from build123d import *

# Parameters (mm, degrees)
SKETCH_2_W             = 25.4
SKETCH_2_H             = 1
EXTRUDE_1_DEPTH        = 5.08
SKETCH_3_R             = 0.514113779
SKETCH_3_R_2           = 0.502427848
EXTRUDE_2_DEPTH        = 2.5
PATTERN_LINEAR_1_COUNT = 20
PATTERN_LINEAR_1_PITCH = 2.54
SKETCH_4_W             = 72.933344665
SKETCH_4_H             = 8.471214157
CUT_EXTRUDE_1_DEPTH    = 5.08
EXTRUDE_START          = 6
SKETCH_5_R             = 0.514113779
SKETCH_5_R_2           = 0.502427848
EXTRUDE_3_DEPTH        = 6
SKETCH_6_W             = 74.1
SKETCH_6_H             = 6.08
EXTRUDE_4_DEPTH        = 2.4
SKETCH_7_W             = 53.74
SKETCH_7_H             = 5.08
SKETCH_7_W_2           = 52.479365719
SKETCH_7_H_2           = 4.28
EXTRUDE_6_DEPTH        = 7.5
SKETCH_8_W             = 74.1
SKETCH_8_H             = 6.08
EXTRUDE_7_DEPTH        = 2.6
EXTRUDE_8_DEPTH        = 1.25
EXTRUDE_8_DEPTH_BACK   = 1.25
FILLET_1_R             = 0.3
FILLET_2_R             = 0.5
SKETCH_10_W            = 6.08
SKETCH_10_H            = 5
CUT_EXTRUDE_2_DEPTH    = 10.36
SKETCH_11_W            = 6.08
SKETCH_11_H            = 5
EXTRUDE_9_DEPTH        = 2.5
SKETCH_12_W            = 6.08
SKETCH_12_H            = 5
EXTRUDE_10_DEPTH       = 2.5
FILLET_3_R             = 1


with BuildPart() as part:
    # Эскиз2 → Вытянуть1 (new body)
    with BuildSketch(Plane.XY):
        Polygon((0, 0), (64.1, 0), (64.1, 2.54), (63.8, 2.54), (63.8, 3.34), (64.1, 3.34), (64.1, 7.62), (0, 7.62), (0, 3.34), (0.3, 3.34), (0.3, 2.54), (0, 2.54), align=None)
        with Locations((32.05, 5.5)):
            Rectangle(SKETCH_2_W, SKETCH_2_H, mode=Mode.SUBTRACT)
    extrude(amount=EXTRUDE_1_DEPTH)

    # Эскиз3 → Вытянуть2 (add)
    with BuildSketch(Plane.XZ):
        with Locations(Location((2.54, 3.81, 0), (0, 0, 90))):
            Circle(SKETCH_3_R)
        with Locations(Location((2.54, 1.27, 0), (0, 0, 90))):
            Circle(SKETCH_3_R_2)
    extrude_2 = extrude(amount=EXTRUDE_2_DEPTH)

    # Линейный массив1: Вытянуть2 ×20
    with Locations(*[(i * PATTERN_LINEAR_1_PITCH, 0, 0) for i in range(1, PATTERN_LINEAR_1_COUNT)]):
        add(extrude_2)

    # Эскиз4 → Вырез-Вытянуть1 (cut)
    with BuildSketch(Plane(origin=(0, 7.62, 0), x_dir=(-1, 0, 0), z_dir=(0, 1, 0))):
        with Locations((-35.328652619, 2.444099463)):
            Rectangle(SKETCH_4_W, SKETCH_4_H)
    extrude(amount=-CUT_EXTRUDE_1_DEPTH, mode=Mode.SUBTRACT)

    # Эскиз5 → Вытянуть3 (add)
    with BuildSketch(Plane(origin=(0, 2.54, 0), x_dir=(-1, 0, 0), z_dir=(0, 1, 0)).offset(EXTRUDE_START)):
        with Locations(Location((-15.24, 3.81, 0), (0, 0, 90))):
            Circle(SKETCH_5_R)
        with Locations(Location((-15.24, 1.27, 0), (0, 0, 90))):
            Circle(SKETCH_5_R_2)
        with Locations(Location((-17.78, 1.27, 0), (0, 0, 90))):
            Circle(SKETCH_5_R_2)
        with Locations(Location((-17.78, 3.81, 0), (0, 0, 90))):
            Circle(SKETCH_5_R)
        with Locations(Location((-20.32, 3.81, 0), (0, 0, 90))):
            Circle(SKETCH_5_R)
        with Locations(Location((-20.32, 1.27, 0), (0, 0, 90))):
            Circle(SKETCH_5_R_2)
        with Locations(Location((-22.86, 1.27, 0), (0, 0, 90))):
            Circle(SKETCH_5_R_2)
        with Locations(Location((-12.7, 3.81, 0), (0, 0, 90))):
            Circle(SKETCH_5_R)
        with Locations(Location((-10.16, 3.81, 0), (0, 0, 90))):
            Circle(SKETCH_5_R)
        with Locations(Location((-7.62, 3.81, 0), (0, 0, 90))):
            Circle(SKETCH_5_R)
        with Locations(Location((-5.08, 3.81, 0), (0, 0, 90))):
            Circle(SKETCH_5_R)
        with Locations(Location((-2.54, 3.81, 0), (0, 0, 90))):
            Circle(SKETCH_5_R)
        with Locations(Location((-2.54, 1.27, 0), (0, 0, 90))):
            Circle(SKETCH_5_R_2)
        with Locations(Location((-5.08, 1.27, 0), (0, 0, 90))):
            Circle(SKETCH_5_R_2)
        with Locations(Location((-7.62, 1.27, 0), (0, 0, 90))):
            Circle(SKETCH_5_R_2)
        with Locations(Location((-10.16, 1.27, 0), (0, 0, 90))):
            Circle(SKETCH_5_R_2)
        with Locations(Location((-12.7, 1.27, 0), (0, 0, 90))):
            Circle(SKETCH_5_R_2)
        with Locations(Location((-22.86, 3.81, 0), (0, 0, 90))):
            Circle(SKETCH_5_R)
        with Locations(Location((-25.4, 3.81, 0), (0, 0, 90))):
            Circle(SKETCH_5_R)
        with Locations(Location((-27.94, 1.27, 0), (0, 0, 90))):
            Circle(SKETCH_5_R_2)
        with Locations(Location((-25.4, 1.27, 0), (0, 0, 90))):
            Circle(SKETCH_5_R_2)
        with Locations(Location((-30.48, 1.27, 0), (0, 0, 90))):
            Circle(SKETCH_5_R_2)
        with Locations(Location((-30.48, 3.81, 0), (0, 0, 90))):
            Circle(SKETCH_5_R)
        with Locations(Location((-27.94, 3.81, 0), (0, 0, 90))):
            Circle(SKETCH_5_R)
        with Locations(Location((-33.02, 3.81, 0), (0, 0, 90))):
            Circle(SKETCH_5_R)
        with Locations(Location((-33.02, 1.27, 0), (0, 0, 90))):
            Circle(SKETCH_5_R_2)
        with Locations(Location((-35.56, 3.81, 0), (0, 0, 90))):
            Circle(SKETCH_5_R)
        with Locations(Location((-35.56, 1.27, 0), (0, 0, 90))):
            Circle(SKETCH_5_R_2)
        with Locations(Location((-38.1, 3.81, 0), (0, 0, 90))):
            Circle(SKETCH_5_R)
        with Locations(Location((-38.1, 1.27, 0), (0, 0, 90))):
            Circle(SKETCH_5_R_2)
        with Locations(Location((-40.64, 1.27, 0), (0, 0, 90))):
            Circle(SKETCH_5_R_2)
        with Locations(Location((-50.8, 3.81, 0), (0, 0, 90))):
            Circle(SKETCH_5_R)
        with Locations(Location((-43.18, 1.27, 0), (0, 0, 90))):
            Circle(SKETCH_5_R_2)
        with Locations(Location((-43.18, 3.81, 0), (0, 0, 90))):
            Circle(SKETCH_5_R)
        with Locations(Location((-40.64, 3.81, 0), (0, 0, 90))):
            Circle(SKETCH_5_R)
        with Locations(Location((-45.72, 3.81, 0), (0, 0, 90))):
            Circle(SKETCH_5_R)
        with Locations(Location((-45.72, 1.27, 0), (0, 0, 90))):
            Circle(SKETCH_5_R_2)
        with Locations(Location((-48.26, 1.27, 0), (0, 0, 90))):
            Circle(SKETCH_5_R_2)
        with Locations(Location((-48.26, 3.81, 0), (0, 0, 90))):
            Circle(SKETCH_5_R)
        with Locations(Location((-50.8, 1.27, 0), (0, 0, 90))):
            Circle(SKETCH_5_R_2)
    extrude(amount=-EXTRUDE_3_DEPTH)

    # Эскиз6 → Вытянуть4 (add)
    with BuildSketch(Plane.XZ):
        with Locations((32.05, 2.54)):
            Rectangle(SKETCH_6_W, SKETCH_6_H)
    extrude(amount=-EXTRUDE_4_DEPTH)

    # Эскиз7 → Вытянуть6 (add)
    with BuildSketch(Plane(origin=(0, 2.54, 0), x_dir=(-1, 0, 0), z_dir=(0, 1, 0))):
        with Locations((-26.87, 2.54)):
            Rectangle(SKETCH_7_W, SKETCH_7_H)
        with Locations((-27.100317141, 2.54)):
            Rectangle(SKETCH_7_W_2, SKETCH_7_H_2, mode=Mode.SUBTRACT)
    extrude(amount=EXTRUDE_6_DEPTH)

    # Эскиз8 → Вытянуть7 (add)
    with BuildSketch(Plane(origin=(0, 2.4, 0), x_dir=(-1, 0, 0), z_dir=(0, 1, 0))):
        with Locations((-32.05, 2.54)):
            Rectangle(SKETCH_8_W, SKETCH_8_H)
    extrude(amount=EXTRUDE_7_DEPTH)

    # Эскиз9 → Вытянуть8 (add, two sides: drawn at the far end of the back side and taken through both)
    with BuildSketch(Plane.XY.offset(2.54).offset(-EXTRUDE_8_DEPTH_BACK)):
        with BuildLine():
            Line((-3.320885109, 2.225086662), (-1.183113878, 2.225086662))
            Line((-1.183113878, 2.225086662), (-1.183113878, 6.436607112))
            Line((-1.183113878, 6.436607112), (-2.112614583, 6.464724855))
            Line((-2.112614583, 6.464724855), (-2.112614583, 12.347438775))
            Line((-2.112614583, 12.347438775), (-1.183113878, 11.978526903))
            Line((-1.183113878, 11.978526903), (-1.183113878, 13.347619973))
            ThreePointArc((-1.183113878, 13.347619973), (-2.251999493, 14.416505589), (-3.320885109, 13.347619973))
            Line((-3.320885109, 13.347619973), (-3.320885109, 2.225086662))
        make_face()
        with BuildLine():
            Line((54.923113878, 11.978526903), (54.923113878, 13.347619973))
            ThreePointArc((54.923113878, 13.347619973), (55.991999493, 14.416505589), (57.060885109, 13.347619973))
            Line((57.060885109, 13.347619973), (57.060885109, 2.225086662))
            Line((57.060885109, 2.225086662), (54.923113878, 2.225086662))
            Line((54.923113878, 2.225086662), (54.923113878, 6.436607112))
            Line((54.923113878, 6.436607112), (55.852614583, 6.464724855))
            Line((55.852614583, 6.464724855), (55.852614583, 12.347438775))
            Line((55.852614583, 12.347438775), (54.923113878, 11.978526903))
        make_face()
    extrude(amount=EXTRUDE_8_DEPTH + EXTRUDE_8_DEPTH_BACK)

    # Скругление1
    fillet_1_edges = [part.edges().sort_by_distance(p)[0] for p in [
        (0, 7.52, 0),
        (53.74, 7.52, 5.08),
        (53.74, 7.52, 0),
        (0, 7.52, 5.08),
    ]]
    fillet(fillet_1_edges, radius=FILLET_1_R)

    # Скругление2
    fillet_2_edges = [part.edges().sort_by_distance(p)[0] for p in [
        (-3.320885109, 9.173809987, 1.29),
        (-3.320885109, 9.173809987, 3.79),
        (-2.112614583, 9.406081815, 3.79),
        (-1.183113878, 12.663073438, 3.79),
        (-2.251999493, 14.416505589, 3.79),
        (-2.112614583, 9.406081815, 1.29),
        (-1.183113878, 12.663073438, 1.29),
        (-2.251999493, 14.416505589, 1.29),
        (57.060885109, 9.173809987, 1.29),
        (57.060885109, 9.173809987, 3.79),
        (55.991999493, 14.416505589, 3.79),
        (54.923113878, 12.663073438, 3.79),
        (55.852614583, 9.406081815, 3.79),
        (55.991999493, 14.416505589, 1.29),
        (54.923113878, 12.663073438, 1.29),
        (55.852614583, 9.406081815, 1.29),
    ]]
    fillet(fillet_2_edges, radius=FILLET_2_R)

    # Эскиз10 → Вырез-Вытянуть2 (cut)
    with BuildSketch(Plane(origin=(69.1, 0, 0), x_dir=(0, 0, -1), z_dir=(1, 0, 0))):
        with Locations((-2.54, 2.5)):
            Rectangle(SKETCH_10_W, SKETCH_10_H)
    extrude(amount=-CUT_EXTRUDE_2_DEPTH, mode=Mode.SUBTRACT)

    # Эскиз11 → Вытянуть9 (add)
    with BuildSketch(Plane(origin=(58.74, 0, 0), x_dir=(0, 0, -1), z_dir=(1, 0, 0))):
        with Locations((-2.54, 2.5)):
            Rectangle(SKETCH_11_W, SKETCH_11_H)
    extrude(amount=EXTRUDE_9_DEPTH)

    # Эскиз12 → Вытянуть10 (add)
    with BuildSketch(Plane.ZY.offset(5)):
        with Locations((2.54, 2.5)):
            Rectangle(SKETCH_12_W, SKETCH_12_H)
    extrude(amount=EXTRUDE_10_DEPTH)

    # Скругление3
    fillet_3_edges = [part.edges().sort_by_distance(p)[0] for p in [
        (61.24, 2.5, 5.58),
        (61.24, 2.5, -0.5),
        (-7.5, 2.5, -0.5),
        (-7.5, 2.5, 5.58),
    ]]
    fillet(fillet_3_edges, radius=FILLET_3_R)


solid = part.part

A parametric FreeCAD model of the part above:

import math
import FreeCAD as App
import Part
import Sketcher

V = App.Vector


def edges_at(feature, points):
    """Names of the edges that pass closest to the given points."""
    edges = feature.Shape.Edges
    near = lambda p: min(range(len(edges)), key=lambda i: edges[i].distToShape(Part.Vertex(*p))[0])
    return sorted({f"Edge{near(p) + 1}" for p in points})


def add_polygon(sketch, points):
    """Adds a closed chain of lines whose ends are joined by coincident constraints."""
    first, n = sketch.GeometryCount, len(points)
    for a, b in zip(points, points[1:] + points[:1]):
        sketch.addGeometry(Part.LineSegment(App.Vector(*a, 0), App.Vector(*b, 0)), False)
    for i in range(n):
        sketch.addConstraint(Sketcher.Constraint("Coincident", first + i, 2, first + (i + 1) % n, 1))

doc = App.newDocument("Part")
body = doc.addObject("PartDesign::Body", "Body")

# Sketch on XY plane
sketch1 = body.newObject("Sketcher::SketchObject", "Sketch")
sketch1.AttachmentSupport = (doc.getObject("XY_Plane"), [""])
sketch1.MapMode = "FlatFace"
add_polygon(sketch1, [(0, 0), (64.1, 0), (64.1, 2.54), (63.8, 2.54), (63.8, 3.34), (64.1, 3.34), (64.1, 7.62), (0, 7.62), (0, 3.34), (0.3, 3.34), (0.3, 2.54), (0, 2.54)])  # lines 0-11
add_polygon(sketch1, [(44.75, 5), (19.35, 5), (19.35, 6), (44.75, 6)])  # lines 12-15
sketch1.addConstraint([
    Sketcher.Constraint("Horizontal", 0),
    Sketcher.Constraint("Vertical", 1),
    Sketcher.Constraint("Horizontal", 2),
    Sketcher.Constraint("Vertical", 3),
    Sketcher.Constraint("Horizontal", 4),
    Sketcher.Constraint("Vertical", 5),
    Sketcher.Constraint("Horizontal", 6),
    Sketcher.Constraint("Vertical", 7),
    Sketcher.Constraint("Horizontal", 8),
    Sketcher.Constraint("Vertical", 9),
    Sketcher.Constraint("Horizontal", 10),
    Sketcher.Constraint("Vertical", 11),
    Sketcher.Constraint("Horizontal", 12),
    Sketcher.Constraint("Vertical", 13),
    Sketcher.Constraint("Horizontal", 14),
    Sketcher.Constraint("Vertical", 15),
    Sketcher.Constraint("Coincident", 11, 2, -1, 1),
    Sketcher.Constraint("PointOnObject", 6, 2, -2),
    Sketcher.Constraint("Horizontal", 4, 2, 7, 2),
    Sketcher.Constraint("Horizontal", 2, 2, 9, 2),
    Sketcher.Constraint("Vertical", 1, 2, 4, 2),
    Sketcher.Constraint("Equal", 4, 8),
    Sketcher.Constraint("DistanceY", 13, 1, 13, 2, 1.0),
    Sketcher.Constraint("DistanceX", 0, 1, 0, 2, 64.1),
    Sketcher.Constraint("DistanceX", 2, 2, 2, 1, 0.3),
    Sketcher.Constraint("DistanceX", 12, 2, 12, 1, 25.4),
    Sketcher.Constraint("DistanceY", 3, 1, 3, 2, 0.8),
    Sketcher.Constraint("DistanceY", -1, 1, 12, 2, 5.0),
    Sketcher.Constraint("DistanceY", 1, 1, 1, 2, 2.54),
    Sketcher.Constraint("DistanceY", 5, 1, 5, 2, 4.28),
    Sketcher.Constraint("DistanceX", -1, 1, 12, 2, 19.35),
])
pad1 = body.newObject("PartDesign::Pad", "Pad")
pad1.Profile = sketch1
pad1.Length = 5.08

# Sketch on XZ plane
sketch2 = body.newObject("Sketcher::SketchObject", "Sketch001")
sketch2.AttachmentSupport = (doc.getObject("XZ_Plane"), [""])
sketch2.MapMode = "FlatFace"
sketch2.addGeometry([
    Part.Circle(V(2.5, 3.8, 0), V(0, 0, 1), 0.5),
    Part.Circle(V(2.5, 1.3, 0), V(0, 0, 1), 0.5),
], False)
sketch2.addConstraint([
    Sketcher.Constraint("Vertical", 0, 3, 1, 3),
    Sketcher.Constraint("DistanceX", -1, 1, 0, 3, 2.54),
    Sketcher.Constraint("DistanceY", -1, 1, 0, 3, 3.81),
    Sketcher.Constraint("DistanceY", -1, 1, 1, 3, 1.27),
    Sketcher.Constraint("Diameter", 0, 1.028228),
    Sketcher.Constraint("Diameter", 1, 1.004856),
])
pad2 = body.newObject("PartDesign::Pad", "Pad001")
pad2.Profile = sketch2
pad2.Length = 2.5
doc.recompute()

linearpattern = body.newObject("PartDesign::LinearPattern", "LinearPattern")
linearpattern.Originals = [pad2]
linearpattern.Direction = (doc.getObject("X_Axis"), [""])
linearpattern.Mode = "offset"
linearpattern.Offset = 2.54
linearpattern.Occurrences = 20
body.Tip = linearpattern

# Sketch on XZ plane
sketch3 = body.newObject("Sketcher::SketchObject", "Sketch002")
sketch3.AttachmentSupport = (doc.getObject("XZ_Plane"), [""])
sketch3.MapMode = "FlatFace"
sketch3.AttachmentOffset = App.Placement(V(0, 0, -7.62), App.Rotation())
add_polygon(sketch3, [(72, 7), (72, -2), (-1, -2), (-1, 7)])  # lines 0-3
sketch3.addConstraint([
    Sketcher.Constraint("Vertical", 0),
    Sketcher.Constraint("Horizontal", 1),
    Sketcher.Constraint("Vertical", 2),
    Sketcher.Constraint("Horizontal", 3),
    Sketcher.Constraint("DistanceX", 1, 2, 1, 1, 72.933345),
    Sketcher.Constraint("DistanceY", 0, 2, 0, 1, 8.471214),
    Sketcher.Constraint("DistanceX", 1, 2, -1, 1, 1.13802),
    Sketcher.Constraint("DistanceY", 0, 2, -1, 1, 1.791508),
])
pocket1 = body.newObject("PartDesign::Pocket", "Pocket")
pocket1.Profile = sketch3
pocket1.Length = 5.08
pocket1.Reversed = True

# Sketch on XZ plane
sketch4 = body.newObject("Sketcher::SketchObject", "Sketch003")
sketch4.AttachmentSupport = (doc.getObject("XZ_Plane"), [""])
sketch4.MapMode = "FlatFace"
sketch4.AttachmentOffset = App.Placement(V(0, 0, -8.54), App.Rotation())
sketch4.addGeometry([
    Part.Circle(V(15.2, 3.8, 0), V(0, 0, 1), 0.5),  # 0
    Part.Circle(V(15.2, 1.3, 0), V(0, 0, 1), 0.5),  # 1
    Part.Circle(V(17.8, 1.3, 0), V(0, 0, 1), 0.5),  # 2
    Part.Circle(V(17.8, 3.8, 0), V(0, 0, 1), 0.5),  # 3
    Part.Circle(V(20.3, 3.8, 0), V(0, 0, 1), 0.5),  # 4
    Part.Circle(V(20.3, 1.3, 0), V(0, 0, 1), 0.5),  # 5
    Part.Circle(V(22.9, 1.3, 0), V(0, 0, 1), 0.5),  # 6
    Part.Circle(V(12.7, 3.8, 0), V(0, 0, 1), 0.5),  # 7
    Part.Circle(V(10.2, 3.8, 0), V(0, 0, 1), 0.5),  # 8
    Part.Circle(V(7.6, 3.8, 0), V(0, 0, 1), 0.5),  # 9
    Part.Circle(V(5.1, 3.8, 0), V(0, 0, 1), 0.5),  # 10
    Part.Circle(V(2.5, 3.8, 0), V(0, 0, 1), 0.5),  # 11
    Part.Circle(V(2.5, 1.3, 0), V(0, 0, 1), 0.5),  # 12
    Part.Circle(V(5.1, 1.3, 0), V(0, 0, 1), 0.5),  # 13
    Part.Circle(V(7.6, 1.3, 0), V(0, 0, 1), 0.5),  # 14
    Part.Circle(V(10.2, 1.3, 0), V(0, 0, 1), 0.5),  # 15
    Part.Circle(V(12.7, 1.3, 0), V(0, 0, 1), 0.5),  # 16
    Part.Circle(V(22.9, 3.8, 0), V(0, 0, 1), 0.5),  # 17
    Part.Circle(V(25.4, 3.8, 0), V(0, 0, 1), 0.5),  # 18
    Part.Circle(V(27.9, 1.3, 0), V(0, 0, 1), 0.5),  # 19
    Part.Circle(V(25.4, 1.3, 0), V(0, 0, 1), 0.5),  # 20
    Part.Circle(V(30.5, 1.3, 0), V(0, 0, 1), 0.5),  # 21
    Part.Circle(V(30.5, 3.8, 0), V(0, 0, 1), 0.5),  # 22
    Part.Circle(V(27.9, 3.8, 0), V(0, 0, 1), 0.5),  # 23
    Part.Circle(V(33, 3.8, 0), V(0, 0, 1), 0.5),  # 24
    Part.Circle(V(33, 1.3, 0), V(0, 0, 1), 0.5),  # 25
    Part.Circle(V(35.6, 3.8, 0), V(0, 0, 1), 0.5),  # 26
    Part.Circle(V(35.6, 1.3, 0), V(0, 0, 1), 0.5),  # 27
    Part.Circle(V(38.1, 3.8, 0), V(0, 0, 1), 0.5),  # 28
    Part.Circle(V(38.1, 1.3, 0), V(0, 0, 1), 0.5),  # 29
    Part.Circle(V(40.6, 1.3, 0), V(0, 0, 1), 0.5),  # 30
    Part.Circle(V(50.8, 3.8, 0), V(0, 0, 1), 0.5),  # 31
    Part.Circle(V(43.2, 1.3, 0), V(0, 0, 1), 0.5),  # 32
    Part.Circle(V(43.2, 3.8, 0), V(0, 0, 1), 0.5),  # 33
    Part.Circle(V(40.6, 3.8, 0), V(0, 0, 1), 0.5),  # 34
    Part.Circle(V(45.7, 3.8, 0), V(0, 0, 1), 0.5),  # 35
    Part.Circle(V(45.7, 1.3, 0), V(0, 0, 1), 0.5),  # 36
    Part.Circle(V(48.3, 1.3, 0), V(0, 0, 1), 0.5),  # 37
    Part.Circle(V(48.3, 3.8, 0), V(0, 0, 1), 0.5),  # 38
    Part.Circle(V(50.8, 1.3, 0), V(0, 0, 1), 0.5),  # 39
], False)
sketch4.addConstraint([
    Sketcher.Constraint("Equal", 1, 2),
    Sketcher.Constraint("Equal", 0, 3),
    Sketcher.Constraint("Equal", 3, 4),
    Sketcher.Constraint("Equal", 2, 5),
    Sketcher.Constraint("Equal", 5, 6),
    Sketcher.Constraint("Equal", 4, 7),
    Sketcher.Constraint("Equal", 7, 8),
    Sketcher.Constraint("Equal", 8, 9),
    Sketcher.Constraint("Equal", 9, 10),
    Sketcher.Constraint("Equal", 10, 11),
    Sketcher.Constraint("Equal", 6, 12),
    Sketcher.Constraint("Equal", 12, 13),
    Sketcher.Constraint("Equal", 13, 14),
    Sketcher.Constraint("Equal", 14, 15),
    Sketcher.Constraint("Equal", 15, 16),
    Sketcher.Constraint("Equal", 11, 17),
    Sketcher.Constraint("Equal", 17, 18),
    Sketcher.Constraint("Equal", 16, 19),
    Sketcher.Constraint("Equal", 19, 20),
    Sketcher.Constraint("Equal", 20, 21),
    Sketcher.Constraint("Equal", 18, 22),
    Sketcher.Constraint("Equal", 22, 23),
    Sketcher.Constraint("Equal", 23, 24),
    Sketcher.Constraint("Equal", 21, 25),
    Sketcher.Constraint("Equal", 24, 26),
    Sketcher.Constraint("Equal", 25, 27),
    Sketcher.Constraint("Equal", 26, 28),
    Sketcher.Constraint("Equal", 27, 29),
    Sketcher.Constraint("Equal", 29, 30),
    Sketcher.Constraint("Equal", 28, 31),
    Sketcher.Constraint("Equal", 30, 32),
    Sketcher.Constraint("Equal", 31, 33),
    Sketcher.Constraint("Equal", 33, 34),
    Sketcher.Constraint("Equal", 34, 35),
    Sketcher.Constraint("Equal", 32, 36),
    Sketcher.Constraint("Equal", 36, 37),
    Sketcher.Constraint("Equal", 35, 38),
    Sketcher.Constraint("Equal", 37, 39),
    Sketcher.Constraint("Horizontal", 1, 3, 2, 3),
    Sketcher.Constraint("Horizontal", 0, 3, 3, 3),
    Sketcher.Constraint("Horizontal", 3, 3, 4, 3),
    Sketcher.Constraint("Horizontal", 2, 3, 5, 3),
    Sketcher.Constraint("Horizontal", 5, 3, 6, 3),
    Sketcher.Constraint("Horizontal", 4, 3, 7, 3),
    Sketcher.Constraint("Horizontal", 7, 3, 8, 3),
    Sketcher.Constraint("Horizontal", 8, 3, 9, 3),
    Sketcher.Constraint("Horizontal", 9, 3, 10, 3),
    Sketcher.Constraint("Horizontal", 10, 3, 11, 3),
    Sketcher.Constraint("Horizontal", 6, 3, 12, 3),
    Sketcher.Constraint("Horizontal", 12, 3, 13, 3),
    Sketcher.Constraint("Horizontal", 13, 3, 14, 3),
    Sketcher.Constraint("Horizontal", 14, 3, 15, 3),
    Sketcher.Constraint("Horizontal", 15, 3, 16, 3),
    Sketcher.Constraint("Horizontal", 11, 3, 17, 3),
    Sketcher.Constraint("Horizontal", 17, 3, 18, 3),
    Sketcher.Constraint("Horizontal", 16, 3, 19, 3),
    Sketcher.Constraint("Horizontal", 19, 3, 20, 3),
    Sketcher.Constraint("Horizontal", 20, 3, 21, 3),
    Sketcher.Constraint("Horizontal", 18, 3, 22, 3),
    Sketcher.Constraint("Horizontal", 22, 3, 23, 3),
    Sketcher.Constraint("Horizontal", 23, 3, 24, 3),
    Sketcher.Constraint("Horizontal", 21, 3, 25, 3),
    Sketcher.Constraint("Horizontal", 24, 3, 26, 3),
    Sketcher.Constraint("Horizontal", 25, 3, 27, 3),
    Sketcher.Constraint("Horizontal", 26, 3, 28, 3),
    Sketcher.Constraint("Horizontal", 27, 3, 29, 3),
    Sketcher.Constraint("Horizontal", 29, 3, 30, 3),
    Sketcher.Constraint("Horizontal", 28, 3, 31, 3),
    Sketcher.Constraint("Horizontal", 30, 3, 32, 3),
    Sketcher.Constraint("Horizontal", 31, 3, 33, 3),
    Sketcher.Constraint("Horizontal", 33, 3, 34, 3),
    Sketcher.Constraint("Horizontal", 34, 3, 35, 3),
    Sketcher.Constraint("Horizontal", 32, 3, 36, 3),
    Sketcher.Constraint("Horizontal", 36, 3, 37, 3),
    Sketcher.Constraint("Horizontal", 35, 3, 38, 3),
    Sketcher.Constraint("Horizontal", 37, 3, 39, 3),
    Sketcher.Constraint("Vertical", 0, 3, 1, 3),
    Sketcher.Constraint("Vertical", 2, 3, 3, 3),
    Sketcher.Constraint("Vertical", 4, 3, 5, 3),
    Sketcher.Constraint("Vertical", 11, 3, 12, 3),
    Sketcher.Constraint("Vertical", 10, 3, 13, 3),
    Sketcher.Constraint("Vertical", 9, 3, 14, 3),
    Sketcher.Constraint("Vertical", 8, 3, 15, 3),
    Sketcher.Constraint("Vertical", 7, 3, 16, 3),
    Sketcher.Constraint("Vertical", 6, 3, 17, 3),
    Sketcher.Constraint("Vertical", 18, 3, 20, 3),
    Sketcher.Constraint("Vertical", 21, 3, 22, 3),
    Sketcher.Constraint("Vertical", 19, 3, 23, 3),
    Sketcher.Constraint("Vertical", 24, 3, 25, 3),
    Sketcher.Constraint("Vertical", 26, 3, 27, 3),
    Sketcher.Constraint("Vertical", 28, 3, 29, 3),
    Sketcher.Constraint("Vertical", 32, 3, 33, 3),
    Sketcher.Constraint("Vertical", 30, 3, 34, 3),
    Sketcher.Constraint("Vertical", 35, 3, 36, 3),
    Sketcher.Constraint("Vertical", 37, 3, 38, 3),
    Sketcher.Constraint("Vertical", 31, 3, 39, 3),
    Sketcher.Constraint("DistanceX", -1, 1, 7, 3, 12.7),
    Sketcher.Constraint("DistanceX", -1, 1, 18, 3, 25.4),
    Sketcher.Constraint("DistanceX", -1, 1, 28, 3, 38.1),
    Sketcher.Constraint("DistanceX", -1, 1, 31, 3, 50.8),
    Sketcher.Constraint("DistanceX", 11, 3, 0, 3, 12.7),
    Sketcher.Constraint("DistanceX", -1, 1, 0, 3, 15.24),
    Sketcher.Constraint("DistanceY", -1, 1, 0, 3, 3.81),
    Sketcher.Constraint("DistanceY", -1, 1, 1, 3, 1.27),
    Sketcher.Constraint("DistanceX", -1, 1, 2, 3, 17.78),
    Sketcher.Constraint("DistanceX", -1, 1, 4, 3, 20.32),
    Sketcher.Constraint("DistanceX", -1, 1, 6, 3, 22.86),
    Sketcher.Constraint("DistanceX", -1, 1, 8, 3, 10.16),
    Sketcher.Constraint("DistanceX", -1, 1, 9, 3, 7.62),
    Sketcher.Constraint("DistanceX", -1, 1, 10, 3, 5.08),
    Sketcher.Constraint("DistanceX", -1, 1, 19, 3, 27.94),
    Sketcher.Constraint("DistanceX", -1, 1, 21, 3, 30.48),
    Sketcher.Constraint("DistanceX", -1, 1, 24, 3, 33.02),
    Sketcher.Constraint("DistanceX", -1, 1, 26, 3, 35.56),
    Sketcher.Constraint("DistanceX", -1, 1, 30, 3, 40.64),
    Sketcher.Constraint("DistanceX", -1, 1, 32, 3, 43.18),
    Sketcher.Constraint("DistanceX", -1, 1, 35, 3, 45.72),
    Sketcher.Constraint("DistanceX", -1, 1, 37, 3, 48.26),
    Sketcher.Constraint("Diameter", 0, 1.028228),
    Sketcher.Constraint("Diameter", 1, 1.004856),
])
pad3 = body.newObject("PartDesign::Pad", "Pad002")
pad3.Profile = sketch4
pad3.Length = 6

# Sketch on XZ plane
sketch5 = body.newObject("Sketcher::SketchObject", "Sketch004")
sketch5.AttachmentSupport = (doc.getObject("XZ_Plane"), [""])
sketch5.MapMode = "FlatFace"
add_polygon(sketch5, [(-5, 6), (-5, 0), (69, 0), (69, 6)])  # lines 0-3
sketch5.addConstraint([
    Sketcher.Constraint("Vertical", 0),
    Sketcher.Constraint("Horizontal", 1),
    Sketcher.Constraint("Vertical", 2),
    Sketcher.Constraint("Horizontal", 3),
    Sketcher.Constraint("DistanceX", 1, 1, 1, 2, 74.1),
    Sketcher.Constraint("DistanceX", 0, 2, -1, 1, 5.0),
    Sketcher.Constraint("DistanceY", 0, 2, 0, 1, 6.08),
    Sketcher.Constraint("DistanceY", 0, 2, -1, 1, 0.5),
])
pad4 = body.newObject("PartDesign::Pad", "Pad003")
pad4.Profile = sketch5
pad4.Length = 2.4
pad4.Reversed = True

# Sketch on XZ plane
sketch6 = body.newObject("Sketcher::SketchObject", "Sketch005")
sketch6.AttachmentSupport = (doc.getObject("XZ_Plane"), [""])
sketch6.MapMode = "FlatFace"
sketch6.AttachmentOffset = App.Placement(V(0, 0, -2.54), App.Rotation())
add_polygon(sketch6, [(53.7, 5.1), (53.7, 0), (0, 0), (0, 5.1)])  # lines 0-3
add_polygon(sketch6, [(0.9, 0.4), (53.3, 0.4), (53.3, 4.7), (0.9, 4.7)])  # lines 4-7
sketch6.addConstraint([
    Sketcher.Constraint("Vertical", 0),
    Sketcher.Constraint("Horizontal", 1),
    Sketcher.Constraint("Vertical", 2),
    Sketcher.Constraint("Horizontal", 3),
    Sketcher.Constraint("Horizontal", 4),
    Sketcher.Constraint("Vertical", 5),
    Sketcher.Constraint("Horizontal", 6),
    Sketcher.Constraint("Vertical", 7),
    Sketcher.Constraint("Coincident", 1, 2, -1, 1),
    Sketcher.Constraint("DistanceX", 1, 2, 1, 1, 53.74),
    Sketcher.Constraint("DistanceY", 0, 2, 0, 1, 5.08),
    Sketcher.Constraint("DistanceY", 5, 1, 5, 2, 4.28),
    Sketcher.Constraint("DistanceY", -1, 1, 4, 2, 0.4),
    Sketcher.Constraint("DistanceX", 4, 2, 0, 2, 0.4),
    Sketcher.Constraint("DistanceX", 4, 1, 4, 2, 52.479366),
])
pad5 = body.newObject("PartDesign::Pad", "Pad004")
pad5.Profile = sketch6
pad5.Length = 7.5
pad5.Reversed = True

# Sketch on XZ plane
sketch7 = body.newObject("Sketcher::SketchObject", "Sketch006")
sketch7.AttachmentSupport = (doc.getObject("XZ_Plane"), [""])
sketch7.MapMode = "FlatFace"
sketch7.AttachmentOffset = App.Placement(V(0, 0, -2.4), App.Rotation())
add_polygon(sketch7, [(69, 6), (69, 0), (-5, 0), (-5, 6)])  # lines 0-3
sketch7.addConstraint([
    Sketcher.Constraint("Vertical", 0),
    Sketcher.Constraint("Horizontal", 1),
    Sketcher.Constraint("Vertical", 2),
    Sketcher.Constraint("Horizontal", 3),
    Sketcher.Constraint("DistanceX", 1, 2, 1, 1, 74.1),
    Sketcher.Constraint("DistanceX", 1, 2, -1, 1, 5.0),
    Sketcher.Constraint("DistanceY", 0, 2, 0, 1, 6.08),
    Sketcher.Constraint("DistanceY", 0, 2, -1, 1, 0.5),
])
pad6 = body.newObject("PartDesign::Pad", "Pad005")
pad6.Profile = sketch7
pad6.Length = 2.6
pad6.Reversed = True

# Sketch on XY plane
sketch8 = body.newObject("Sketcher::SketchObject", "Sketch007")
sketch8.AttachmentSupport = (doc.getObject("XY_Plane"), [""])
sketch8.MapMode = "FlatFace"
sketch8.AttachmentOffset = App.Placement(V(0, 0, 2.54), App.Rotation())
sketch8.addGeometry([
    Part.LineSegment(V(-3.3, 2.2, 0), V(-1.2, 2.2, 0)),  # 0
    Part.LineSegment(V(-1.2, 2.2, 0), V(-1.2, 6.4, 0)),  # 1
    Part.LineSegment(V(-1.2, 6.4, 0), V(-2.1, 6.5, 0)),  # 2
    Part.LineSegment(V(-2.1, 6.5, 0), V(-2.1, 12.3, 0)),  # 3
    Part.LineSegment(V(-2.1, 12.3, 0), V(-1.2, 12, 0)),  # 4
    Part.LineSegment(V(-1.2, 12, 0), V(-1.2, 13.3, 0)),  # 5
    Part.ArcOfCircle(Part.Circle(V(-2.3, 13.3, 0), V(0, 0, 1), 1.1), math.radians(0), math.radians(180)),  # 6
    Part.LineSegment(V(-3.3, 13.3, 0), V(-3.3, 2.2, 0)),  # 7
    Part.LineSegment(V(54.9, 13.3, 0), V(54.9, 12, 0)),  # 8
    Part.LineSegment(V(54.9, 12, 0), V(55.9, 12.3, 0)),  # 9
    Part.LineSegment(V(55.9, 12.3, 0), V(55.9, 6.5, 0)),  # 10
    Part.LineSegment(V(55.9, 6.5, 0), V(54.9, 6.4, 0)),  # 11
    Part.LineSegment(V(54.9, 6.4, 0), V(54.9, 2.2, 0)),  # 12
    Part.LineSegment(V(54.9, 2.2, 0), V(57.1, 2.2, 0)),  # 13
    Part.LineSegment(V(57.1, 2.2, 0), V(57.1, 13.3, 0)),  # 14
    Part.ArcOfCircle(Part.Circle(V(56, 13.3, 0), V(0, 0, 1), 1.1), math.radians(0), math.radians(180)),  # 15
], False)
sketch8.addConstraint([
    Sketcher.Constraint("Coincident", 0, 2, 1, 1),
    Sketcher.Constraint("Coincident", 1, 2, 2, 1),
    Sketcher.Constraint("Coincident", 2, 2, 3, 1),
    Sketcher.Constraint("Coincident", 3, 2, 4, 1),
    Sketcher.Constraint("Coincident", 4, 2, 5, 1),
    Sketcher.Constraint("Tangent", 5, 2, 6, 1),
    Sketcher.Constraint("Tangent", 6, 2, 7, 1),
    Sketcher.Constraint("Coincident", 7, 2, 0, 1),
    Sketcher.Constraint("Coincident", 8, 2, 9, 1),
    Sketcher.Constraint("Coincident", 9, 2, 10, 1),
    Sketcher.Constraint("Coincident", 10, 2, 11, 1),
    Sketcher.Constraint("Coincident", 11, 2, 12, 1),
    Sketcher.Constraint("Coincident", 12, 2, 13, 1),
    Sketcher.Constraint("Coincident", 13, 2, 14, 1),
    Sketcher.Constraint("Tangent", 14, 2, 15, 1),
    Sketcher.Constraint("Tangent", 15, 2, 8, 1),
    Sketcher.Constraint("Horizontal", 0),
    Sketcher.Constraint("Vertical", 1),
    Sketcher.Constraint("Vertical", 3),
    Sketcher.Constraint("Vertical", 5),
    Sketcher.Constraint("Vertical", 7),
    Sketcher.Constraint("Vertical", 8),
    Sketcher.Constraint("Vertical", 10),
    Sketcher.Constraint("Vertical", 12),
    Sketcher.Constraint("Horizontal", 13),
    Sketcher.Constraint("Vertical", 14),
    Sketcher.Constraint("Equal", 6, 15),
    Sketcher.Constraint("Horizontal", 6, 3, 15, 3),
    Sketcher.Constraint("Horizontal", 4, 2, 8, 2),
    Sketcher.Constraint("Horizontal", 3, 2, 9, 2),
    Sketcher.Constraint("Horizontal", 2, 2, 10, 2),
    Sketcher.Constraint("Horizontal", 1, 2, 11, 2),
    Sketcher.Constraint("Horizontal", 7, 2, 12, 2),
    Sketcher.Constraint("Vertical", 1, 2, 4, 2),
    Sketcher.Constraint("Vertical", 8, 2, 11, 2),
    Sketcher.Constraint("Equal", 4, 9),
    Sketcher.Constraint("DistanceX", 6, 3, -1, 1, 2.251999),
    Sketcher.Constraint("DistanceX", -1, 1, 15, 3, 55.991999),
    Sketcher.Constraint("Radius", 6, 1.068886),
    Sketcher.Constraint("DistanceY", 1, 1, 1, 2, 4.21152),
    Sketcher.Constraint("DistanceX", 2, 2, 1, 2, 0.929501),
    Sketcher.Constraint("DistanceY", 3, 1, 3, 2, 5.882714),
    Sketcher.Constraint("DistanceY", 5, 1, 5, 2, 1.369093),
    Sketcher.Constraint("DistanceY", 7, 2, 7, 1, 11.122533),
    Sketcher.Constraint("DistanceY", -1, 1, 6, 3, 13.34762),
    Sketcher.Constraint("DistanceY", -1, 1, 3, 2, 12.347439),
])
pad7 = body.newObject("PartDesign::Pad", "Pad006")
pad7.Profile = sketch8
pad7.Type = "TwoLengths"
pad7.Length = 1.25
pad7.Length2 = 1.25
doc.recompute()

fillet = body.newObject("PartDesign::Fillet", "Fillet")
fillet.Base = (pad7, edges_at(pad7, [
    (0, 7.52, 0),
    (53.74, 7.52, 5.08),
    (53.74, 7.52, 0),
    (0, 7.52, 5.08),
]))
fillet.Radius = 0.3
doc.recompute()

fillet2 = body.newObject("PartDesign::Fillet", "Fillet001")
fillet2.Base = (fillet, edges_at(fillet, [
    (-3.321, 9.174, 1.29),
    (-3.321, 9.174, 3.79),
    (-2.113, 9.406, 3.79),
    (-1.183, 12.663, 3.79),
    (-2.252, 14.417, 3.79),
    (-2.113, 9.406, 1.29),
    (-1.183, 12.663, 1.29),
    (-2.252, 14.417, 1.29),
    (57.061, 9.174, 1.29),
    (57.061, 9.174, 3.79),
    (55.992, 14.417, 3.79),
    (54.923, 12.663, 3.79),
    (55.853, 9.406, 3.79),
    (55.992, 14.417, 1.29),
    (54.923, 12.663, 1.29),
    (55.853, 9.406, 1.29),
]))
fillet2.Radius = 0.5

# Sketch on YZ plane
sketch9 = body.newObject("Sketcher::SketchObject", "Sketch008")
sketch9.AttachmentSupport = (doc.getObject("YZ_Plane"), [""])
sketch9.MapMode = "FlatFace"
sketch9.AttachmentOffset = App.Placement(V(0, 0, 69.1), App.Rotation())
add_polygon(sketch9, [(5, 6), (0, 6), (0, 0), (5, 0)])  # lines 0-3
sketch9.addConstraint([
    Sketcher.Constraint("Horizontal", 0),
    Sketcher.Constraint("Vertical", 1),
    Sketcher.Constraint("Horizontal", 2),
    Sketcher.Constraint("Vertical", 3),
    Sketcher.Constraint("PointOnObject", 0, 2, -2),
    Sketcher.Constraint("DistanceX", 0, 2, 0, 1, 5.0),
    Sketcher.Constraint("DistanceY", 1, 2, 1, 1, 6.08),
    Sketcher.Constraint("DistanceY", 1, 2, -1, 1, 0.5),
])
pocket2 = body.newObject("PartDesign::Pocket", "Pocket001")
pocket2.Profile = sketch9
pocket2.Length = 10.36

# Sketch on YZ plane
sketch10 = body.newObject("Sketcher::SketchObject", "Sketch009")
sketch10.AttachmentSupport = (doc.getObject("YZ_Plane"), [""])
sketch10.MapMode = "FlatFace"
sketch10.AttachmentOffset = App.Placement(V(0, 0, 58.74), App.Rotation())
add_polygon(sketch10, [(5, 6), (0, 6), (0, 0), (5, 0)])  # lines 0-3
sketch10.addConstraint([
    Sketcher.Constraint("Horizontal", 0),
    Sketcher.Constraint("Vertical", 1),
    Sketcher.Constraint("Horizontal", 2),
    Sketcher.Constraint("Vertical", 3),
    Sketcher.Constraint("PointOnObject", 0, 2, -2),
    Sketcher.Constraint("DistanceX", 0, 2, 0, 1, 5.0),
    Sketcher.Constraint("DistanceY", 1, 2, 1, 1, 6.08),
    Sketcher.Constraint("DistanceY", 1, 2, -1, 1, 0.5),
])
pad8 = body.newObject("PartDesign::Pad", "Pad007")
pad8.Profile = sketch10
pad8.Length = 2.5

# Sketch on YZ plane
sketch11 = body.newObject("Sketcher::SketchObject", "Sketch010")
sketch11.AttachmentSupport = (doc.getObject("YZ_Plane"), [""])
sketch11.MapMode = "FlatFace"
sketch11.AttachmentOffset = App.Placement(V(0, 0, -5), App.Rotation())
add_polygon(sketch11, [(5, 0), (0, 0), (0, 6), (5, 6)])  # lines 0-3
sketch11.addConstraint([
    Sketcher.Constraint("Horizontal", 0),
    Sketcher.Constraint("Vertical", 1),
    Sketcher.Constraint("Horizontal", 2),
    Sketcher.Constraint("Vertical", 3),
    Sketcher.Constraint("PointOnObject", 0, 2, -2),
    Sketcher.Constraint("DistanceX", 0, 2, 0, 1, 5.0),
    Sketcher.Constraint("DistanceY", 1, 1, 1, 2, 6.08),
    Sketcher.Constraint("DistanceY", 0, 2, -1, 1, 0.5),
])
pad9 = body.newObject("PartDesign::Pad", "Pad008")
pad9.Profile = sketch11
pad9.Length = 2.5
pad9.Reversed = True
doc.recompute()

fillet3 = body.newObject("PartDesign::Fillet", "Fillet002")
fillet3.Base = (pad9, edges_at(pad9, [
    (61.24, 2.5, 5.58),
    (61.24, 2.5, -0.5),
    (-7.5, 2.5, -0.5),
    (-7.5, 2.5, 5.58),
]))
fillet3.Radius = 1

doc.recompute()
